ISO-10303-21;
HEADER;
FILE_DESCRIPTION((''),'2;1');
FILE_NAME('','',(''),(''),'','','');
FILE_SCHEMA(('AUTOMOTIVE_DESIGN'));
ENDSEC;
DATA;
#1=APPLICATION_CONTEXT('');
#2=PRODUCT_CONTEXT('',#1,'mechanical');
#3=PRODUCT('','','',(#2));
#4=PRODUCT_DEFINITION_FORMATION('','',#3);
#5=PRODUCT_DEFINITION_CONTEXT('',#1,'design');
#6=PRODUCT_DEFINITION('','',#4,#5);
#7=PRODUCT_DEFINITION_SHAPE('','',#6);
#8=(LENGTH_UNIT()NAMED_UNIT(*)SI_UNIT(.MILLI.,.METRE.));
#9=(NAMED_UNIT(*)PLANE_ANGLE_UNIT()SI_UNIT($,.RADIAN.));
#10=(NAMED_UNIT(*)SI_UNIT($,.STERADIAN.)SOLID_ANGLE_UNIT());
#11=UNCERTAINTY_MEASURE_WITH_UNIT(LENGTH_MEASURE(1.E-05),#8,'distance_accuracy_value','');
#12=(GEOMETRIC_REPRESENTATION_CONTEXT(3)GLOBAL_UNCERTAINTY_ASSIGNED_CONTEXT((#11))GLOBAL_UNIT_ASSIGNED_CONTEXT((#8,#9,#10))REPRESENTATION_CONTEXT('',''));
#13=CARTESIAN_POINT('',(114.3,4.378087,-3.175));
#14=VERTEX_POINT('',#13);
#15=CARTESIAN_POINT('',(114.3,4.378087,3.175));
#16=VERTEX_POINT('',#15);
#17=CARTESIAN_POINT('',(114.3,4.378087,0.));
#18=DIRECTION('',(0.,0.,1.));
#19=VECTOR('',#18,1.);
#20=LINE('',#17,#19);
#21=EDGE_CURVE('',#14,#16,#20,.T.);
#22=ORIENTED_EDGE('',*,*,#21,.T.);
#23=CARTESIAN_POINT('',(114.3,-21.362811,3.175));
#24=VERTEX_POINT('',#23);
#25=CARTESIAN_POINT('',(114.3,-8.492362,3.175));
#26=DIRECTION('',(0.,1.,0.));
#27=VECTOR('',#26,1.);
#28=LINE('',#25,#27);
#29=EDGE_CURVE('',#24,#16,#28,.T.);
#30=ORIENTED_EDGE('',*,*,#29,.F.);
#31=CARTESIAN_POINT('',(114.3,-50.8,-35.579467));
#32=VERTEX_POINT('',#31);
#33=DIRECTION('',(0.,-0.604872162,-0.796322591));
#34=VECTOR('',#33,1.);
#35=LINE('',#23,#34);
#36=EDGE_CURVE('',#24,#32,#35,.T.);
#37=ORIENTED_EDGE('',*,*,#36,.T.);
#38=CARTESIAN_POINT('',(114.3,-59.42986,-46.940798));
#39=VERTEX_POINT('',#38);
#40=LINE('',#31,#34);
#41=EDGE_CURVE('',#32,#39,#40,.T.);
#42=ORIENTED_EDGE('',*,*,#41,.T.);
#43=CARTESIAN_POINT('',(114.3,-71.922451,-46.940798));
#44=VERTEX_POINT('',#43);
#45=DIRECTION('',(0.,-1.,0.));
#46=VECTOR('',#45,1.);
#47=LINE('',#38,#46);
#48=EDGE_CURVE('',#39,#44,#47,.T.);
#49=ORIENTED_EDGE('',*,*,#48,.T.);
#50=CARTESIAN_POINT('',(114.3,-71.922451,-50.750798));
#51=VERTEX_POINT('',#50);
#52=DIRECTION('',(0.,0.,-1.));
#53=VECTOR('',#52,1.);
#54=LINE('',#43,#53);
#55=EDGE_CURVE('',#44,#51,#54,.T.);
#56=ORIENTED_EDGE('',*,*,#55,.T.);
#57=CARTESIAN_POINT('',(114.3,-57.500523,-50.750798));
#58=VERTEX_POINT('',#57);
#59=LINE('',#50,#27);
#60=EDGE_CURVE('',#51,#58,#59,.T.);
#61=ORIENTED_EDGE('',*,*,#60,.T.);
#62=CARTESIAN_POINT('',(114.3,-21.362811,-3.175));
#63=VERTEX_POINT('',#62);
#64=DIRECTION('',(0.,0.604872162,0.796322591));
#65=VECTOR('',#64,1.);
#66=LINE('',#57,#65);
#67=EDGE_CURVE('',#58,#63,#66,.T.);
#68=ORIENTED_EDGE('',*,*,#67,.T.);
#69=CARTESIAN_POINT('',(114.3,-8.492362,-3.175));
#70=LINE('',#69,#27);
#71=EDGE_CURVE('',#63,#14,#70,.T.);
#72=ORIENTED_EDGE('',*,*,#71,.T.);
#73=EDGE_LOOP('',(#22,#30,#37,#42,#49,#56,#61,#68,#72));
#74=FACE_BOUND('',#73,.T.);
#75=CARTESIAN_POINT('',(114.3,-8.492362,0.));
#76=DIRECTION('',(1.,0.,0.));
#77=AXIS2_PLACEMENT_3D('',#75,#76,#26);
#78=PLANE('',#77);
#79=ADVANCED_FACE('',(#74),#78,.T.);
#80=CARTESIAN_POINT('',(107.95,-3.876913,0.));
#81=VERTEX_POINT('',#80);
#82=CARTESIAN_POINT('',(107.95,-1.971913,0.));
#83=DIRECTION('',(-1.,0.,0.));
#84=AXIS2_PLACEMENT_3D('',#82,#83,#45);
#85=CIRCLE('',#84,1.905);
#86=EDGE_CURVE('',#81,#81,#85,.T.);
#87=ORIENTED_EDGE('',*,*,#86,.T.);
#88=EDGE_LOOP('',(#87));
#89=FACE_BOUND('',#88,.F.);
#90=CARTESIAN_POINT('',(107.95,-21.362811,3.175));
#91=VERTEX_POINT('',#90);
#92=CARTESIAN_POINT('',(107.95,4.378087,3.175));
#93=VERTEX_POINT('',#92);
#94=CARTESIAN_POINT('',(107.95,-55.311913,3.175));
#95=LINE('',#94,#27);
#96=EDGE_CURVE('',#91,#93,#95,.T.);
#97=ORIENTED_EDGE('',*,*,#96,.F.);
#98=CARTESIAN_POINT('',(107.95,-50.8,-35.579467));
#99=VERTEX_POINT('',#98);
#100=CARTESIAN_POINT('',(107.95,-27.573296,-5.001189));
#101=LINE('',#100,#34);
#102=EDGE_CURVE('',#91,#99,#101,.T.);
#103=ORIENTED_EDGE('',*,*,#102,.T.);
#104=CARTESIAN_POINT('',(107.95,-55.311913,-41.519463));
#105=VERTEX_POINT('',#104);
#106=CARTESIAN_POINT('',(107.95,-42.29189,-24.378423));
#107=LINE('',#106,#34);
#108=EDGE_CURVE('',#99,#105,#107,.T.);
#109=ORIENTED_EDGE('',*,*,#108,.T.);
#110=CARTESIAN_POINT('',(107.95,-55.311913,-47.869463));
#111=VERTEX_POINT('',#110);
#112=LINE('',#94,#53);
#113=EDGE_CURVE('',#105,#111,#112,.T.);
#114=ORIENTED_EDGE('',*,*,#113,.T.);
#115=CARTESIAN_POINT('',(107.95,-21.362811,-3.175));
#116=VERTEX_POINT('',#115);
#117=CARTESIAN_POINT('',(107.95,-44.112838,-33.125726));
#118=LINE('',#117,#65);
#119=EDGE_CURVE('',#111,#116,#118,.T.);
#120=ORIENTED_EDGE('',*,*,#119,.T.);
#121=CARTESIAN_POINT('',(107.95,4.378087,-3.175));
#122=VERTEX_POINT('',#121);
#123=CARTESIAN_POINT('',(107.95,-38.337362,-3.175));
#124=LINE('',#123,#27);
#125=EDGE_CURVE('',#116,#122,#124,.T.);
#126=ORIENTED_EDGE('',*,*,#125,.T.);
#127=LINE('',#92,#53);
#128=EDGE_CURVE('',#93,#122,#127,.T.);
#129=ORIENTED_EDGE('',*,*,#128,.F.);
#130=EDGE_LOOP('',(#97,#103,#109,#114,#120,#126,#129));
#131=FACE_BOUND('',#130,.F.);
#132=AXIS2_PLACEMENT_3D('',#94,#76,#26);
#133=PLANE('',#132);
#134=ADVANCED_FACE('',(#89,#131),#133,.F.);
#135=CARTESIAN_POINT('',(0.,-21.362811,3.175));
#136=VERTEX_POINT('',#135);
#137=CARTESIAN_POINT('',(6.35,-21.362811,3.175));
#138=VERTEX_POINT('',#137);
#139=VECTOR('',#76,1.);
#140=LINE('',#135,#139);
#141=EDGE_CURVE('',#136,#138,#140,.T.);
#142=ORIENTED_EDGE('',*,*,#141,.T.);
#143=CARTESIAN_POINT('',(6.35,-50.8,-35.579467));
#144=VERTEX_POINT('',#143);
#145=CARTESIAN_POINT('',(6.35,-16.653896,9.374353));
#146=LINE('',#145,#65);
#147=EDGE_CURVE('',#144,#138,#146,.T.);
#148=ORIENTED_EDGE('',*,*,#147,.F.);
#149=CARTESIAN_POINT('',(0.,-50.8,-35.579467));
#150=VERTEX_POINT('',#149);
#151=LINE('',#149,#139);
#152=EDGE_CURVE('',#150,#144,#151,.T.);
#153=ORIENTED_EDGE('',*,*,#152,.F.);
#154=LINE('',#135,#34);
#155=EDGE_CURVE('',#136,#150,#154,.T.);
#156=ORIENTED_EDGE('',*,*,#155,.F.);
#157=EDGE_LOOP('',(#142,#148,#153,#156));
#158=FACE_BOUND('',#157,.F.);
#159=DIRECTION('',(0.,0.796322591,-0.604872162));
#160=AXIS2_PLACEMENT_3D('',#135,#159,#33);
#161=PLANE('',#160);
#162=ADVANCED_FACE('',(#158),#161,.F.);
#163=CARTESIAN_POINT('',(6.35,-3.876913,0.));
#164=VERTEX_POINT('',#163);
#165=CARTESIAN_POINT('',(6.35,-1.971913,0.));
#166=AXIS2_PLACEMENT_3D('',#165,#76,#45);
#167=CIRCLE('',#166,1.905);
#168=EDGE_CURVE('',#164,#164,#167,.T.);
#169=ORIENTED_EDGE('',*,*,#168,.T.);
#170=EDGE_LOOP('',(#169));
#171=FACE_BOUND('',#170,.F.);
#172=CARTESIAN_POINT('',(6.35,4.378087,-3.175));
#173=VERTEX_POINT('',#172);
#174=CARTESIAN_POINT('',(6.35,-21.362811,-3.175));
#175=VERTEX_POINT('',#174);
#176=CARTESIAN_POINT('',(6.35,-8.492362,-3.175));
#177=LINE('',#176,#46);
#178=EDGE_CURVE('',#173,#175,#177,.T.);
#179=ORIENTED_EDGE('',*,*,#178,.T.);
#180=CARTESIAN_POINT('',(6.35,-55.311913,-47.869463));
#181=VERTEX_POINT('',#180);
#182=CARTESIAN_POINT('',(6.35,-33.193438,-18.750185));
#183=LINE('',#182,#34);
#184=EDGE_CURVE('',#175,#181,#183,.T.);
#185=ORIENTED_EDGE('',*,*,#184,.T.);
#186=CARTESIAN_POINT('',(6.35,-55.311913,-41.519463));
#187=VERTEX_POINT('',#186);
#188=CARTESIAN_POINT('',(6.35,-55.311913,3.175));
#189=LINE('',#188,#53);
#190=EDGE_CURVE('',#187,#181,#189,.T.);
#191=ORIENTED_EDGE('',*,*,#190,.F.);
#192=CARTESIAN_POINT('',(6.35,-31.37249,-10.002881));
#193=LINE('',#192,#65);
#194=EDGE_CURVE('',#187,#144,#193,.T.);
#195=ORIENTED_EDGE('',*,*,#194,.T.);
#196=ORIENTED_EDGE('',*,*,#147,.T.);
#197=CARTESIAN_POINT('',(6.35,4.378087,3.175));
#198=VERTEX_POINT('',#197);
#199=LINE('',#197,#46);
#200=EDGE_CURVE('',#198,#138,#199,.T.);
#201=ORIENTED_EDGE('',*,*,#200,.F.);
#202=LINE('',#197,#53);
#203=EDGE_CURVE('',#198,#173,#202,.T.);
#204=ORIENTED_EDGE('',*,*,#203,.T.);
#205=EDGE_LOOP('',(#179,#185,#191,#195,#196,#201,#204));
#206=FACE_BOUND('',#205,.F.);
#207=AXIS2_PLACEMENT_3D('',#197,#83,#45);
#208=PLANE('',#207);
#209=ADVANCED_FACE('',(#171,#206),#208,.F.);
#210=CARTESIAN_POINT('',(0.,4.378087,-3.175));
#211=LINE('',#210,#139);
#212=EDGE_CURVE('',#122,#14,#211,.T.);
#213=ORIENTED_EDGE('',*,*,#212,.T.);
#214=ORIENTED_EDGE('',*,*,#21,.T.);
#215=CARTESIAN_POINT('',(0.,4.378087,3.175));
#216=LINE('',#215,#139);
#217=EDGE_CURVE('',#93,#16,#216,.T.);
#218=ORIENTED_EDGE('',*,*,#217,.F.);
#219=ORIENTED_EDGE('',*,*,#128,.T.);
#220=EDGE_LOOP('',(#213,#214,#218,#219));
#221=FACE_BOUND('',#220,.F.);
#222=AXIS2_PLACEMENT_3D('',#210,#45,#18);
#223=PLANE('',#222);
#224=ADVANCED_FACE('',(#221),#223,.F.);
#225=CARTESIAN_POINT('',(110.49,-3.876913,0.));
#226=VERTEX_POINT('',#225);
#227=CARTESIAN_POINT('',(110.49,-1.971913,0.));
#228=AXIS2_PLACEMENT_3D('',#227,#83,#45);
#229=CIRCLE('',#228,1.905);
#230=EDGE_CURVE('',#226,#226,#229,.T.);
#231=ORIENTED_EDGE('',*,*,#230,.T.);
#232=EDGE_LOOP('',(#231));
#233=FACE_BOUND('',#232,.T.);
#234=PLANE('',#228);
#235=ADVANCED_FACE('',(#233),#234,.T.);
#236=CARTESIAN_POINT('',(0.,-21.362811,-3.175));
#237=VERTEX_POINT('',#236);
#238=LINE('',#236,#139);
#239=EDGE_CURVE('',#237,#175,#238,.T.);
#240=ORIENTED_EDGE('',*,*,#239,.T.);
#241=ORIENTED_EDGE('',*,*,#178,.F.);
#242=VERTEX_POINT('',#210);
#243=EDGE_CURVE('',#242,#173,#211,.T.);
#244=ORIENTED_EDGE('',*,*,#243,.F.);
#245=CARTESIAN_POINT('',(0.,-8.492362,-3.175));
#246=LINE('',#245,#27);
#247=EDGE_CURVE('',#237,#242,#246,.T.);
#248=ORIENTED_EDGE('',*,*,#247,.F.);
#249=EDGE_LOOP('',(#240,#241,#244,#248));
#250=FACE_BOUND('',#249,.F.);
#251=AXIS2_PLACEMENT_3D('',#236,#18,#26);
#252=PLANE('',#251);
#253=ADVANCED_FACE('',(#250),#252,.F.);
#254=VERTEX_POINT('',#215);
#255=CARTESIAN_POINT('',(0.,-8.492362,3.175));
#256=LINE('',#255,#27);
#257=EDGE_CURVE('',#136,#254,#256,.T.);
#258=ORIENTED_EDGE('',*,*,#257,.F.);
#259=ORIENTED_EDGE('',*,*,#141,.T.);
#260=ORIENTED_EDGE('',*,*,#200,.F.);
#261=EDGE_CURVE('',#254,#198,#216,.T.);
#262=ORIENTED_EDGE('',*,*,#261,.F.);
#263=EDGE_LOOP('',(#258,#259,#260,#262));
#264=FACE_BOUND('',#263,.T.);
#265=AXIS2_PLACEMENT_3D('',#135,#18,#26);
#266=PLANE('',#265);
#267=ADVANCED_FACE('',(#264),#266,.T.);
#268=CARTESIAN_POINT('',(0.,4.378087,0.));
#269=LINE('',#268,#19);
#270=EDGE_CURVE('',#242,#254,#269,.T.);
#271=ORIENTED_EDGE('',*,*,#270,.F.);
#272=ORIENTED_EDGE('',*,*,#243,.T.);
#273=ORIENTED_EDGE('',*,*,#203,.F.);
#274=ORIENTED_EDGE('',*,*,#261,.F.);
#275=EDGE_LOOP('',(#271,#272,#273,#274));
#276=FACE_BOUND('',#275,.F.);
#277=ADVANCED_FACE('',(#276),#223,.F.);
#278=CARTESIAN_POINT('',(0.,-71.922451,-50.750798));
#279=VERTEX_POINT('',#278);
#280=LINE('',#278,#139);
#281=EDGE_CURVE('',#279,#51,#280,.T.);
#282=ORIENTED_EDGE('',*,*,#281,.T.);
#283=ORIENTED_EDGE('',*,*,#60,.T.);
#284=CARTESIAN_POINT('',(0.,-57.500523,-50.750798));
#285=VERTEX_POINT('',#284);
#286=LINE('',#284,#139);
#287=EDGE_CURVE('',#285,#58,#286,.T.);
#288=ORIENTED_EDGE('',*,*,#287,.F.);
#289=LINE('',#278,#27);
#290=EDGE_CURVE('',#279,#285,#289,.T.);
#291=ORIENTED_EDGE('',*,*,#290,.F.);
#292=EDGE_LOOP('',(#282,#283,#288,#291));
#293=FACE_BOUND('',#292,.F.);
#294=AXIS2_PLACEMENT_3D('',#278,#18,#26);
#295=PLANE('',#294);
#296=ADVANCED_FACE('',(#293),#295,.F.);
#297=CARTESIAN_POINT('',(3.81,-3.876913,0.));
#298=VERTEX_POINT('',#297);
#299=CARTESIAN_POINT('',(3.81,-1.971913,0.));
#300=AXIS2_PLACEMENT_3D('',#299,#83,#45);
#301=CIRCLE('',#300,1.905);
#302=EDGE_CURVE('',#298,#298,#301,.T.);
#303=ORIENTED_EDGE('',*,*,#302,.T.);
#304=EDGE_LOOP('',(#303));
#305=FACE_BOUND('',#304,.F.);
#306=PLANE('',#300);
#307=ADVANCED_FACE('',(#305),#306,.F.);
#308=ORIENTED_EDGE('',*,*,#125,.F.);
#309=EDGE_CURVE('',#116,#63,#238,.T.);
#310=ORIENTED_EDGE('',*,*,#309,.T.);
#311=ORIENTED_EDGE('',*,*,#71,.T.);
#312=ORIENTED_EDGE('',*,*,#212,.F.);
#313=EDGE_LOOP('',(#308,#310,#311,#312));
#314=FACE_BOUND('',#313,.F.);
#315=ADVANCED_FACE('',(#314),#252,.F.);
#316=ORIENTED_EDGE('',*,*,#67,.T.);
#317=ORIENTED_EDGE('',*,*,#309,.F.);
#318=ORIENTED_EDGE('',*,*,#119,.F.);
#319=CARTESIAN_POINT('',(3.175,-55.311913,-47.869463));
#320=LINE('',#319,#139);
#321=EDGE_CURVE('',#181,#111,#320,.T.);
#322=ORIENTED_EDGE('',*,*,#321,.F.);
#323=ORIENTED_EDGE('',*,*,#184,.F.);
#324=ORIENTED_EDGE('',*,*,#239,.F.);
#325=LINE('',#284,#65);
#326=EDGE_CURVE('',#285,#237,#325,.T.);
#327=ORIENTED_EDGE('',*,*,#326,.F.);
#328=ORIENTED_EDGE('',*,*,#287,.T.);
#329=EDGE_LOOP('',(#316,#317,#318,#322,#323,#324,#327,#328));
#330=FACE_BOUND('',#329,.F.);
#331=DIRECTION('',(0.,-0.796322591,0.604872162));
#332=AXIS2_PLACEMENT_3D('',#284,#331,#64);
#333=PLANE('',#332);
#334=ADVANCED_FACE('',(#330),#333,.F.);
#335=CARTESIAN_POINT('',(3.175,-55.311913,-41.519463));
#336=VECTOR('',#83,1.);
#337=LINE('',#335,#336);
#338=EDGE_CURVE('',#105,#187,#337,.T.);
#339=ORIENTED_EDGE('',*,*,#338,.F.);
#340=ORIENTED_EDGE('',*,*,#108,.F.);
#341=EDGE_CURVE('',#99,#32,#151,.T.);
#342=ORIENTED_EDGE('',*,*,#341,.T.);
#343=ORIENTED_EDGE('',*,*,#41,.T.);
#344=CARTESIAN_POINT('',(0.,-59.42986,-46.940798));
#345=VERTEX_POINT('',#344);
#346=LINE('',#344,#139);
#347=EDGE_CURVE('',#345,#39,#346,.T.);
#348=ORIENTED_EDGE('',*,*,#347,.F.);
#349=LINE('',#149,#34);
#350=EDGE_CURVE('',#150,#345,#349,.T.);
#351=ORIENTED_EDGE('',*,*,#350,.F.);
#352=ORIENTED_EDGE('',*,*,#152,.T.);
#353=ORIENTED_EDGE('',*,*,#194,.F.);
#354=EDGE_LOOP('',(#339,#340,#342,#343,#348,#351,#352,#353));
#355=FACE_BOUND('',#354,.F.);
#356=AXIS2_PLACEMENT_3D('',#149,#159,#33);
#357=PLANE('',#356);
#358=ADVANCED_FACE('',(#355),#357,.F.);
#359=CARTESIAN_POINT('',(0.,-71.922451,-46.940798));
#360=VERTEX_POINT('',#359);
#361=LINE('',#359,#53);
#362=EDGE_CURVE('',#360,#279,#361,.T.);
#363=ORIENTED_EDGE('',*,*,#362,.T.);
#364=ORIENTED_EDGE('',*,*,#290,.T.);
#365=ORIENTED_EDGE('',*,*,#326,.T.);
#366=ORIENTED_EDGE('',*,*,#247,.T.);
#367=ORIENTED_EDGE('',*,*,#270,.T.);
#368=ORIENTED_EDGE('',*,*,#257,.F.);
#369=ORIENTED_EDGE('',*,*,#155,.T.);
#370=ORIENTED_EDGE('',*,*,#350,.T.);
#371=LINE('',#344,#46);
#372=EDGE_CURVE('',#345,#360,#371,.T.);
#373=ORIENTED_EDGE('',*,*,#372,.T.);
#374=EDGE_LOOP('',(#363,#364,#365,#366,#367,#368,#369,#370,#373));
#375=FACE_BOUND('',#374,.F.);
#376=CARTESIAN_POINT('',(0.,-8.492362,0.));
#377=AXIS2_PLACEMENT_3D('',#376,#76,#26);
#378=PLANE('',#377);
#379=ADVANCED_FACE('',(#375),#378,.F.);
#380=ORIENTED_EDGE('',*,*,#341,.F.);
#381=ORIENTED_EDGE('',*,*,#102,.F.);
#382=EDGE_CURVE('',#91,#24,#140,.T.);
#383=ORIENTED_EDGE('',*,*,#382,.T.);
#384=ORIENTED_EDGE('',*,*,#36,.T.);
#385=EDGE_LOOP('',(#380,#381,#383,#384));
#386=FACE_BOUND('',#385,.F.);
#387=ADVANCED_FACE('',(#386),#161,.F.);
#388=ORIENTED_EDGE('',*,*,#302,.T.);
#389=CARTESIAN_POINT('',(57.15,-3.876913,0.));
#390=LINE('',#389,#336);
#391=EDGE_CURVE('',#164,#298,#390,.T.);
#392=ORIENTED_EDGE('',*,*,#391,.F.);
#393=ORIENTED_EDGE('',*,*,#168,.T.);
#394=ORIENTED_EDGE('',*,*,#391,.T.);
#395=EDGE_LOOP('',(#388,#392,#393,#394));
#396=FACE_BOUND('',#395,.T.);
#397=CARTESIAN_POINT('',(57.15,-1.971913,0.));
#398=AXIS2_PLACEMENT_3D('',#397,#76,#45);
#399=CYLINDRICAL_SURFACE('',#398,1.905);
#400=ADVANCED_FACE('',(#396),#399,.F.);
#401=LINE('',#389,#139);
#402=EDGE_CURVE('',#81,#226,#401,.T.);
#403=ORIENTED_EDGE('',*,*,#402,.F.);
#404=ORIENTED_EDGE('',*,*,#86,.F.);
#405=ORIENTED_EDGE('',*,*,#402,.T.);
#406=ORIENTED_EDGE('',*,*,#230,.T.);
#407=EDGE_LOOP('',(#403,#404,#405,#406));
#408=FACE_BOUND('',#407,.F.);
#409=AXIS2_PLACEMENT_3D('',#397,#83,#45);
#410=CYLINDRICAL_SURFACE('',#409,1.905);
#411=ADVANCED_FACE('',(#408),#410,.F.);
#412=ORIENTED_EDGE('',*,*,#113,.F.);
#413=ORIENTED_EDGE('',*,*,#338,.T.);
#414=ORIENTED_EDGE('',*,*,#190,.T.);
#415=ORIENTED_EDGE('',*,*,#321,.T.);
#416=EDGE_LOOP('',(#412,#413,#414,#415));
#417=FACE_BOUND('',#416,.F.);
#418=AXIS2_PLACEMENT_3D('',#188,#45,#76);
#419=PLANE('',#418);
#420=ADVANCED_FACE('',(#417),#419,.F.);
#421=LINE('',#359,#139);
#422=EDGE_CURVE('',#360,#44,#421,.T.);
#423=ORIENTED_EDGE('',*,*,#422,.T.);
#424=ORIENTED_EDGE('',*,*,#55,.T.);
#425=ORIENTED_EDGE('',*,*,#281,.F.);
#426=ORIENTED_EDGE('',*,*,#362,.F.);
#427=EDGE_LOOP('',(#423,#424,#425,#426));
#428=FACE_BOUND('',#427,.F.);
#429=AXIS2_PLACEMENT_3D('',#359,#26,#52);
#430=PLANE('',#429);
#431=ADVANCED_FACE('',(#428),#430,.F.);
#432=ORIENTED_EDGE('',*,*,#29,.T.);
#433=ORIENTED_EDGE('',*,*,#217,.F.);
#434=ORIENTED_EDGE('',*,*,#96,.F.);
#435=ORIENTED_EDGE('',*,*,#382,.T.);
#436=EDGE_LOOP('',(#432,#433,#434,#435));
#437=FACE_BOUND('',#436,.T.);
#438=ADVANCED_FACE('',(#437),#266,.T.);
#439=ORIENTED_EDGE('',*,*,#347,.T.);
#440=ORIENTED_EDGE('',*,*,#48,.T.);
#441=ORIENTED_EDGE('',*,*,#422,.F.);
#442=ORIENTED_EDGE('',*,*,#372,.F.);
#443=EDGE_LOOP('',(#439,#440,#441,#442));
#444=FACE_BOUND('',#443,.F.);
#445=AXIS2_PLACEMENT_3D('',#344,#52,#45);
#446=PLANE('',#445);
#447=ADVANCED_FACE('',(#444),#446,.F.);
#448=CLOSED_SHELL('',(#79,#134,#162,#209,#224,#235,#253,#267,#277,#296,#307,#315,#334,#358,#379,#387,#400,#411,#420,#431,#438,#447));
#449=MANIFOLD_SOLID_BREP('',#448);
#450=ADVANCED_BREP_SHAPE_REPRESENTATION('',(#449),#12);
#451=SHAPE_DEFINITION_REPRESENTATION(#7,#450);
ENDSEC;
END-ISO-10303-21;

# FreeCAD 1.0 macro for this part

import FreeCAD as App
import Part
import Sketcher
from FreeCAD import Vector
Q = App.Units.Quantity


def add_polygon(sketch, points):
    """Adds a closed chain of lines whose ends are joined by coincident constraints."""
    first, n = sketch.GeometryCount, len(points)
    for a, b in zip(points, points[1:] + points[:1]):
        sketch.addGeometry(Part.LineSegment(App.Vector(*a, 0), App.Vector(*b, 0)), False)
    for i in range(n):
        sketch.addConstraint(Sketcher.Constraint("Coincident", first + i, 2, first + (i + 1) % n, 1))

doc = App.newDocument("Part")
body = doc.addObject("PartDesign::Body", "Body")

# Sketch on YZ plane
sketch1 = body.newObject("Sketcher::SketchObject", "Sketch")
sketch1.AttachmentSupport = (doc.getObject("YZ_Plane"), [""])
sketch1.MapMode = "FlatFace"
add_polygon(sketch1, [(-21.4, -3.2), (4.4, -3.2), (4.4, 3.2), (-21.4, 3.2), (-50.8, -35.6), (-59.4, -46.9), (-71.9, -46.9), (-71.9, -50.8), (-57.5, -50.8)])  # lines 0-8
sketch1.addConstraint(Sketcher.Constraint("Horizontal", 0))
sketch1.addConstraint(Sketcher.Constraint("Vertical", 1))
sketch1.addConstraint(Sketcher.Constraint("Horizontal", 2))
sketch1.addConstraint(Sketcher.Constraint("Horizontal", 5))
sketch1.addConstraint(Sketcher.Constraint("Vertical", 6))
sketch1.addConstraint(Sketcher.Constraint("Horizontal", 7))
sketch1.addConstraint(Sketcher.Constraint("Symmetric", 2, 2, 8, 2, -1))
sketch1.addConstraint(Sketcher.Constraint("Parallel", 3, 4))
sketch1.addConstraint(Sketcher.Constraint("Parallel", 4, 8))
sketch1.addConstraint(Sketcher.Constraint("DistanceX", 3, 2, -1, 1, Q("2 in")))
sketch1.addConstraint(Sketcher.Constraint("DistanceY", 1, 1, 1, 2, Q("0.25 in")))
sketch1.addConstraint(Sketcher.Constraint("DistanceY", 6, 2, 6, 1, Q("0.15 in")))
sketch1.addConstraint(Sketcher.Constraint("DistanceX", 0, 1, 0, 2, Q("25.740899 mm")))
sketch1.addConstraint(Sketcher.Constraint("DistanceX", 7, 2, -1, 1, Q("2.2638001 in")))
sketch1.addConstraint(Sketcher.Constraint("DistanceX", 5, 2, 5, 1, Q("12.492591 mm")))
sketch1.addConstraint(Sketcher.Constraint("DistanceX", 7, 1, 7, 2, Q("14.421929 mm")))
sketch1.addConstraint(Sketcher.Constraint("DistanceY", 4, 2, -1, 1, Q("46.940798 mm")))
pad1 = body.newObject("PartDesign::Pad", "Pad")
pad1.Profile = sketch1
pad1.Length = Q("4.5 in")

# Sketch on XY plane
sketch2 = body.newObject("Sketcher::SketchObject", "Sketch001")
sketch2.AttachmentSupport = (doc.getObject("XY_Plane"), [""])
sketch2.MapMode = "FlatFace"
sketch2.AttachmentOffset = App.Placement(Vector(0, 0, 0.125 * 25.4), App.Rotation())
add_polygon(sketch2, [(6, 4), (6, -55), (108, -55), (108, 4)])  # lines 0-3
sketch2.addConstraint(Sketcher.Constraint("Vertical", 0))
sketch2.addConstraint(Sketcher.Constraint("Horizontal", 1))
sketch2.addConstraint(Sketcher.Constraint("Vertical", 2))
sketch2.addConstraint(Sketcher.Constraint("Horizontal", 3))
sketch2.addConstraint(Sketcher.Constraint("DistanceX", 1, 1, 1, 2, Q("4 in")))
sketch2.addConstraint(Sketcher.Constraint("DistanceY", 0, 2, 0, 1, Q("2.35 in")))
sketch2.addConstraint(Sketcher.Constraint("DistanceX", -1, 1, 0, 2, Q("0.25 in")))
sketch2.addConstraint(Sketcher.Constraint("DistanceY", 0, 2, -1, 1, Q("55.311913 mm")))
pocket1 = body.newObject("PartDesign::Pocket", "Pocket")
pocket1.Profile = sketch2
pocket1.Length = Q("5 in")

# Sketch on YZ plane
sketch3 = body.newObject("Sketcher::SketchObject", "Sketch002")
sketch3.AttachmentSupport = (doc.getObject("YZ_Plane"), [""])
sketch3.MapMode = "FlatFace"
sketch3.AttachmentOffset = App.Placement(Vector(0, 0, 2.25 * 25.4), App.Rotation())
sketch3.addGeometry(Part.Circle(Vector(-2, 0, 0), Vector(0, 0, 1), 1.9), False)
sketch3.addConstraint(Sketcher.Constraint("PointOnObject", 0, 3, -1))
sketch3.addConstraint(Sketcher.Constraint("Diameter", 0, Q("0.15 in")))
sketch3.addConstraint(Sketcher.Constraint("DistanceX", 0, 3, -1, 1, Q("1.971913 mm")))
pocket2 = body.newObject("PartDesign::Pocket", "Pocket001")
pocket2.Profile = sketch3
pocket2.Type = "TwoLengths"
pocket2.Length = Q("2.1 in")
pocket2.Length2 = Q("2.1 in")
pocket2.Reversed = True

doc.recompute()
